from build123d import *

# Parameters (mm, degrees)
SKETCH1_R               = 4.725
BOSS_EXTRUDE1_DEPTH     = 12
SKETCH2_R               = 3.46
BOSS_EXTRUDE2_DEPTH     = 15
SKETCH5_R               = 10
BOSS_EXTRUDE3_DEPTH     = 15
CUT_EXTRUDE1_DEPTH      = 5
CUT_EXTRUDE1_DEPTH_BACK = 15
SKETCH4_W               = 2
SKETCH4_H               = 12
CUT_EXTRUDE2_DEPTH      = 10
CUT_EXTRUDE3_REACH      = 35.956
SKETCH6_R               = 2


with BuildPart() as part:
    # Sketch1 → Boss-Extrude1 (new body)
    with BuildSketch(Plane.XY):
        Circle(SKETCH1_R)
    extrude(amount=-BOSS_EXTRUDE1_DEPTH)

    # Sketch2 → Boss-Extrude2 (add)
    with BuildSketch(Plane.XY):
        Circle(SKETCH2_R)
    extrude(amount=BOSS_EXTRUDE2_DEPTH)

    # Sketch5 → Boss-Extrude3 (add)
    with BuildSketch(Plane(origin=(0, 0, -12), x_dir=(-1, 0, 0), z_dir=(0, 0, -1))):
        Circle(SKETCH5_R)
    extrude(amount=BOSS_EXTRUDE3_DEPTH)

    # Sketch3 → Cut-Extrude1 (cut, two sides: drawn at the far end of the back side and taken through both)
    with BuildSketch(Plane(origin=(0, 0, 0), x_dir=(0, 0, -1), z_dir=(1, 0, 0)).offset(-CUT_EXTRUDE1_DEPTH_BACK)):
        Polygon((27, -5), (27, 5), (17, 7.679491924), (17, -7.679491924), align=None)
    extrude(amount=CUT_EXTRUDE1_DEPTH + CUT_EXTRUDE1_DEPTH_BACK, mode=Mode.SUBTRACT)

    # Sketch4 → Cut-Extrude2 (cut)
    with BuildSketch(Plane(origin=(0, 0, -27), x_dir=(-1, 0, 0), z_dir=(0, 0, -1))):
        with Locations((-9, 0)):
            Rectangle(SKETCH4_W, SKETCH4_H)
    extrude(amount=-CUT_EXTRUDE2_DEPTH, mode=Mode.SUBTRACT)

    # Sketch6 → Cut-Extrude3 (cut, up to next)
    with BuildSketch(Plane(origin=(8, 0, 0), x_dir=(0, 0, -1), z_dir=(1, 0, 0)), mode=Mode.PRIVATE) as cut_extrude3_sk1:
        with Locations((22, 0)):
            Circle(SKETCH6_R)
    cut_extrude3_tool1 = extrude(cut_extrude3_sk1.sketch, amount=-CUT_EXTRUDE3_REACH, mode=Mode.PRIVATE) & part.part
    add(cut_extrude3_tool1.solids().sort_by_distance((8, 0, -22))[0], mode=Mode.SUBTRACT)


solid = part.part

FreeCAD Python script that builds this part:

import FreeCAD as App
import Part
import Sketcher
from FreeCAD import Vector
Q = App.Units.Quantity

doc = App.newDocument("Part")
params = doc.addObject("Spreadsheet::Sheet", "Params")
for row, (alias, value) in enumerate([
    ("sketch1_diameter", "9.45 mm"),
    ("pad1_length", "12 mm"),
    ("sketch2_diameter", "6.92 mm"),
    ("pad2_length", "15 mm"),
    ("sketch3_diameter", "20 mm"),
    ("pad3_length", "15 mm"),
    ("sketch4_width", "10 mm"),
    ("pocket1_length", "5 mm"),
    ("pocket1_length2", "15 mm"),
    ("sketch5_width", "2 mm"),
    ("sketch5_height", "12 mm"),
    ("pocket2_length", "10 mm"),
    ("sketch6_diameter", "4 mm"),
], start=1):
    params.set(f"A{row}", alias)
    params.set(f"B{row}", "=" + value)
    params.setAlias(f"B{row}", alias)

body = doc.addObject("PartDesign::Body", "Body")

# Sketch on XY plane
sketch1 = doc.addObject("Sketcher::SketchObject", "Sketch")
body.addObject(sketch1)
sketch1.AttachmentSupport = (doc.XY_Plane, [""])
sketch1.MapMode = "FlatFace"
sketch1.addGeometry(Part.Circle(Vector(0, 0, 0), Vector(0, 0, 1), 4.7), False)
sketch1.addConstraint([
    Sketcher.Constraint("Coincident", 0, 3, -1, 1),
    Sketcher.Constraint("Diameter", 0, Q("9.45 mm")),
])
sketch1.setExpression("Constraints[1]", "Params.sketch1_diameter")
pad1 = doc.addObject("PartDesign::Pad", "Pad")
body.addObject(pad1)
pad1.Profile = sketch1
pad1.setExpression("Length", "Params.pad1_length")
pad1.Reversed = True

# Sketch on XY plane
sketch2 = doc.addObject("Sketcher::SketchObject", "Sketch001")
body.addObject(sketch2)
sketch2.AttachmentSupport = (doc.XY_Plane, [""])
sketch2.MapMode = "FlatFace"
sketch2.addGeometry(Part.Circle(Vector(0, 0, 0), Vector(0, 0, 1), 3.5), False)
sketch2.addConstraint([
    Sketcher.Constraint("Coincident", 0, 3, -1, 1),
    Sketcher.Constraint("Diameter", 0, Q("6.92 mm")),
])
sketch2.setExpression("Constraints[1]", "Params.sketch2_diameter")
pad2 = doc.addObject("PartDesign::Pad", "Pad001")
body.addObject(pad2)
pad2.Profile = sketch2
pad2.setExpression("Length", "Params.pad2_length")

# Sketch on XY plane
sketch3 = doc.addObject("Sketcher::SketchObject", "Sketch002")
body.addObject(sketch3)
sketch3.AttachmentSupport = (doc.XY_Plane, [""])
sketch3.MapMode = "FlatFace"
sketch3.AttachmentOffset = App.Placement(Vector(0, 0, -12), App.Rotation())
sketch3.addGeometry(Part.Circle(Vector(0, 0, 0), Vector(0, 0, 1), 10), False)
sketch3.addConstraint([
    Sketcher.Constraint("Coincident", 0, 3, -1, 1),
    Sketcher.Constraint("Diameter", 0, Q("20 mm")),
])
sketch3.setExpression("Constraints[1]", "Params.sketch3_diameter")
pad3 = doc.addObject("PartDesign::Pad", "Pad002")
body.addObject(pad3)
pad3.Profile = sketch3
pad3.setExpression("Length", "Params.pad3_length")
pad3.Reversed = True

# Sketch on YZ plane
sketch4 = doc.addObject("Sketcher::SketchObject", "Sketch003")
body.addObject(sketch4)
sketch4.AttachmentSupport = (doc.YZ_Plane, [""])
sketch4.MapMode = "FlatFace"
sketch4.addGeometry([
    Part.LineSegment(Vector(-5, -27, 0), Vector(5, -27, 0)),
    Part.LineSegment(Vector(5, -27, 0), Vector(8, -17, 0)),
    Part.LineSegment(Vector(8, -17, 0), Vector(-8, -17, 0)),
    Part.LineSegment(Vector(-8, -17, 0), Vector(-5, -27, 0)),
], False)
sketch4.addConstraint([
    Sketcher.Constraint("Coincident", 0, 2, 1, 1),
    Sketcher.Constraint("Coincident", 1, 2, 2, 1),
    Sketcher.Constraint("Coincident", 2, 2, 3, 1),
    Sketcher.Constraint("Coincident", 3, 2, 0, 1),
    Sketcher.Constraint("Horizontal", 0),
    Sketcher.Constraint("Horizontal", 2),
    Sketcher.Constraint("Equal", 1, 3),
    Sketcher.Constraint("DistanceX", 0, 1, 0, 2, Q("10 mm")),
    Sketcher.Constraint("Angle", 1, Q("75 deg")),
    Sketcher.Constraint("DistanceX", -1, 1, 0, 2, Q("5 mm")),
    Sketcher.Constraint("DistanceY", 0, 2, -1, 1, Q("27 mm")),
    Sketcher.Constraint("DistanceY", 1, 2, -1, 1, Q("17 mm")),
])
sketch4.setExpression("Constraints[7]", "Params.sketch4_width")
pocket1 = doc.addObject("PartDesign::Pocket", "Pocket")
body.addObject(pocket1)
pocket1.Profile = sketch4
pocket1.Type = "TwoLengths"
pocket1.setExpression("Length", "Params.pocket1_length")
pocket1.setExpression("Length2", "Params.pocket1_length2")
pocket1.Reversed = True

# Sketch on XY plane
sketch5 = doc.addObject("Sketcher::SketchObject", "Sketch004")
body.addObject(sketch5)
sketch5.AttachmentSupport = (doc.XY_Plane, [""])
sketch5.MapMode = "FlatFace"
sketch5.AttachmentOffset = App.Placement(Vector(0, 0, -27), App.Rotation())
sketch5.addGeometry([
    Part.LineSegment(Vector(10, 6, 0), Vector(10, -6, 0)),
    Part.LineSegment(Vector(10, -6, 0), Vector(8, -6, 0)),
    Part.LineSegment(Vector(8, -6, 0), Vector(8, 6, 0)),
    Part.LineSegment(Vector(8, 6, 0), Vector(10, 6, 0)),
], False)
sketch5.addConstraint([
    Sketcher.Constraint("Coincident", 0, 2, 1, 1),
    Sketcher.Constraint("Coincident", 1, 2, 2, 1),
    Sketcher.Constraint("Coincident", 2, 2, 3, 1),
    Sketcher.Constraint("Coincident", 3, 2, 0, 1),
    Sketcher.Constraint("Vertical", 0),
    Sketcher.Constraint("Horizontal", 1),
    Sketcher.Constraint("Vertical", 2),
    Sketcher.Constraint("Horizontal", 3),
    Sketcher.Constraint("DistanceX", 1, 2, 1, 1, Q("2 mm")),
    Sketcher.Constraint("DistanceY", 0, 2, 0, 1, Q("12 mm")),
    Sketcher.Constraint("DistanceX", -1, 1, 0, 2, Q("10 mm")),
    Sketcher.Constraint("DistanceY", 0, 2, -1, 1, Q("6 mm")),
])
sketch5.setExpression("Constraints[8]", "Params.sketch5_width")
sketch5.setExpression("Constraints[9]", "Params.sketch5_height")
pocket2 = doc.addObject("PartDesign::Pocket", "Pocket001")
body.addObject(pocket2)
pocket2.Profile = sketch5
pocket2.setExpression("Length", "Params.pocket2_length")
pocket2.Reversed = True

# Sketch on YZ plane
sketch6 = doc.addObject("Sketcher::SketchObject", "Sketch005")
body.addObject(sketch6)
sketch6.AttachmentSupport = (doc.YZ_Plane, [""])
sketch6.MapMode = "FlatFace"
sketch6.AttachmentOffset = App.Placement(Vector(0, 0, 8), App.Rotation())
sketch6.addGeometry(Part.Circle(Vector(0, -22, 0), Vector(0, 0, 1), 2), False)
sketch6.addConstraint([
    Sketcher.Constraint("PointOnObject", 0, 3, -2),
    Sketcher.Constraint("Diameter", 0, Q("4 mm")),
    Sketcher.Constraint("DistanceY", 0, 3, -1, 1, Q("22 mm")),
])
sketch6.setExpression("Constraints[1]", "Params.sketch6_diameter")
pocket3 = doc.addObject("PartDesign::Pocket", "Pocket002")
body.addObject(pocket3)
pocket3.Profile = sketch6
pocket3.Type = "UpToFirst"

doc.recompute()
